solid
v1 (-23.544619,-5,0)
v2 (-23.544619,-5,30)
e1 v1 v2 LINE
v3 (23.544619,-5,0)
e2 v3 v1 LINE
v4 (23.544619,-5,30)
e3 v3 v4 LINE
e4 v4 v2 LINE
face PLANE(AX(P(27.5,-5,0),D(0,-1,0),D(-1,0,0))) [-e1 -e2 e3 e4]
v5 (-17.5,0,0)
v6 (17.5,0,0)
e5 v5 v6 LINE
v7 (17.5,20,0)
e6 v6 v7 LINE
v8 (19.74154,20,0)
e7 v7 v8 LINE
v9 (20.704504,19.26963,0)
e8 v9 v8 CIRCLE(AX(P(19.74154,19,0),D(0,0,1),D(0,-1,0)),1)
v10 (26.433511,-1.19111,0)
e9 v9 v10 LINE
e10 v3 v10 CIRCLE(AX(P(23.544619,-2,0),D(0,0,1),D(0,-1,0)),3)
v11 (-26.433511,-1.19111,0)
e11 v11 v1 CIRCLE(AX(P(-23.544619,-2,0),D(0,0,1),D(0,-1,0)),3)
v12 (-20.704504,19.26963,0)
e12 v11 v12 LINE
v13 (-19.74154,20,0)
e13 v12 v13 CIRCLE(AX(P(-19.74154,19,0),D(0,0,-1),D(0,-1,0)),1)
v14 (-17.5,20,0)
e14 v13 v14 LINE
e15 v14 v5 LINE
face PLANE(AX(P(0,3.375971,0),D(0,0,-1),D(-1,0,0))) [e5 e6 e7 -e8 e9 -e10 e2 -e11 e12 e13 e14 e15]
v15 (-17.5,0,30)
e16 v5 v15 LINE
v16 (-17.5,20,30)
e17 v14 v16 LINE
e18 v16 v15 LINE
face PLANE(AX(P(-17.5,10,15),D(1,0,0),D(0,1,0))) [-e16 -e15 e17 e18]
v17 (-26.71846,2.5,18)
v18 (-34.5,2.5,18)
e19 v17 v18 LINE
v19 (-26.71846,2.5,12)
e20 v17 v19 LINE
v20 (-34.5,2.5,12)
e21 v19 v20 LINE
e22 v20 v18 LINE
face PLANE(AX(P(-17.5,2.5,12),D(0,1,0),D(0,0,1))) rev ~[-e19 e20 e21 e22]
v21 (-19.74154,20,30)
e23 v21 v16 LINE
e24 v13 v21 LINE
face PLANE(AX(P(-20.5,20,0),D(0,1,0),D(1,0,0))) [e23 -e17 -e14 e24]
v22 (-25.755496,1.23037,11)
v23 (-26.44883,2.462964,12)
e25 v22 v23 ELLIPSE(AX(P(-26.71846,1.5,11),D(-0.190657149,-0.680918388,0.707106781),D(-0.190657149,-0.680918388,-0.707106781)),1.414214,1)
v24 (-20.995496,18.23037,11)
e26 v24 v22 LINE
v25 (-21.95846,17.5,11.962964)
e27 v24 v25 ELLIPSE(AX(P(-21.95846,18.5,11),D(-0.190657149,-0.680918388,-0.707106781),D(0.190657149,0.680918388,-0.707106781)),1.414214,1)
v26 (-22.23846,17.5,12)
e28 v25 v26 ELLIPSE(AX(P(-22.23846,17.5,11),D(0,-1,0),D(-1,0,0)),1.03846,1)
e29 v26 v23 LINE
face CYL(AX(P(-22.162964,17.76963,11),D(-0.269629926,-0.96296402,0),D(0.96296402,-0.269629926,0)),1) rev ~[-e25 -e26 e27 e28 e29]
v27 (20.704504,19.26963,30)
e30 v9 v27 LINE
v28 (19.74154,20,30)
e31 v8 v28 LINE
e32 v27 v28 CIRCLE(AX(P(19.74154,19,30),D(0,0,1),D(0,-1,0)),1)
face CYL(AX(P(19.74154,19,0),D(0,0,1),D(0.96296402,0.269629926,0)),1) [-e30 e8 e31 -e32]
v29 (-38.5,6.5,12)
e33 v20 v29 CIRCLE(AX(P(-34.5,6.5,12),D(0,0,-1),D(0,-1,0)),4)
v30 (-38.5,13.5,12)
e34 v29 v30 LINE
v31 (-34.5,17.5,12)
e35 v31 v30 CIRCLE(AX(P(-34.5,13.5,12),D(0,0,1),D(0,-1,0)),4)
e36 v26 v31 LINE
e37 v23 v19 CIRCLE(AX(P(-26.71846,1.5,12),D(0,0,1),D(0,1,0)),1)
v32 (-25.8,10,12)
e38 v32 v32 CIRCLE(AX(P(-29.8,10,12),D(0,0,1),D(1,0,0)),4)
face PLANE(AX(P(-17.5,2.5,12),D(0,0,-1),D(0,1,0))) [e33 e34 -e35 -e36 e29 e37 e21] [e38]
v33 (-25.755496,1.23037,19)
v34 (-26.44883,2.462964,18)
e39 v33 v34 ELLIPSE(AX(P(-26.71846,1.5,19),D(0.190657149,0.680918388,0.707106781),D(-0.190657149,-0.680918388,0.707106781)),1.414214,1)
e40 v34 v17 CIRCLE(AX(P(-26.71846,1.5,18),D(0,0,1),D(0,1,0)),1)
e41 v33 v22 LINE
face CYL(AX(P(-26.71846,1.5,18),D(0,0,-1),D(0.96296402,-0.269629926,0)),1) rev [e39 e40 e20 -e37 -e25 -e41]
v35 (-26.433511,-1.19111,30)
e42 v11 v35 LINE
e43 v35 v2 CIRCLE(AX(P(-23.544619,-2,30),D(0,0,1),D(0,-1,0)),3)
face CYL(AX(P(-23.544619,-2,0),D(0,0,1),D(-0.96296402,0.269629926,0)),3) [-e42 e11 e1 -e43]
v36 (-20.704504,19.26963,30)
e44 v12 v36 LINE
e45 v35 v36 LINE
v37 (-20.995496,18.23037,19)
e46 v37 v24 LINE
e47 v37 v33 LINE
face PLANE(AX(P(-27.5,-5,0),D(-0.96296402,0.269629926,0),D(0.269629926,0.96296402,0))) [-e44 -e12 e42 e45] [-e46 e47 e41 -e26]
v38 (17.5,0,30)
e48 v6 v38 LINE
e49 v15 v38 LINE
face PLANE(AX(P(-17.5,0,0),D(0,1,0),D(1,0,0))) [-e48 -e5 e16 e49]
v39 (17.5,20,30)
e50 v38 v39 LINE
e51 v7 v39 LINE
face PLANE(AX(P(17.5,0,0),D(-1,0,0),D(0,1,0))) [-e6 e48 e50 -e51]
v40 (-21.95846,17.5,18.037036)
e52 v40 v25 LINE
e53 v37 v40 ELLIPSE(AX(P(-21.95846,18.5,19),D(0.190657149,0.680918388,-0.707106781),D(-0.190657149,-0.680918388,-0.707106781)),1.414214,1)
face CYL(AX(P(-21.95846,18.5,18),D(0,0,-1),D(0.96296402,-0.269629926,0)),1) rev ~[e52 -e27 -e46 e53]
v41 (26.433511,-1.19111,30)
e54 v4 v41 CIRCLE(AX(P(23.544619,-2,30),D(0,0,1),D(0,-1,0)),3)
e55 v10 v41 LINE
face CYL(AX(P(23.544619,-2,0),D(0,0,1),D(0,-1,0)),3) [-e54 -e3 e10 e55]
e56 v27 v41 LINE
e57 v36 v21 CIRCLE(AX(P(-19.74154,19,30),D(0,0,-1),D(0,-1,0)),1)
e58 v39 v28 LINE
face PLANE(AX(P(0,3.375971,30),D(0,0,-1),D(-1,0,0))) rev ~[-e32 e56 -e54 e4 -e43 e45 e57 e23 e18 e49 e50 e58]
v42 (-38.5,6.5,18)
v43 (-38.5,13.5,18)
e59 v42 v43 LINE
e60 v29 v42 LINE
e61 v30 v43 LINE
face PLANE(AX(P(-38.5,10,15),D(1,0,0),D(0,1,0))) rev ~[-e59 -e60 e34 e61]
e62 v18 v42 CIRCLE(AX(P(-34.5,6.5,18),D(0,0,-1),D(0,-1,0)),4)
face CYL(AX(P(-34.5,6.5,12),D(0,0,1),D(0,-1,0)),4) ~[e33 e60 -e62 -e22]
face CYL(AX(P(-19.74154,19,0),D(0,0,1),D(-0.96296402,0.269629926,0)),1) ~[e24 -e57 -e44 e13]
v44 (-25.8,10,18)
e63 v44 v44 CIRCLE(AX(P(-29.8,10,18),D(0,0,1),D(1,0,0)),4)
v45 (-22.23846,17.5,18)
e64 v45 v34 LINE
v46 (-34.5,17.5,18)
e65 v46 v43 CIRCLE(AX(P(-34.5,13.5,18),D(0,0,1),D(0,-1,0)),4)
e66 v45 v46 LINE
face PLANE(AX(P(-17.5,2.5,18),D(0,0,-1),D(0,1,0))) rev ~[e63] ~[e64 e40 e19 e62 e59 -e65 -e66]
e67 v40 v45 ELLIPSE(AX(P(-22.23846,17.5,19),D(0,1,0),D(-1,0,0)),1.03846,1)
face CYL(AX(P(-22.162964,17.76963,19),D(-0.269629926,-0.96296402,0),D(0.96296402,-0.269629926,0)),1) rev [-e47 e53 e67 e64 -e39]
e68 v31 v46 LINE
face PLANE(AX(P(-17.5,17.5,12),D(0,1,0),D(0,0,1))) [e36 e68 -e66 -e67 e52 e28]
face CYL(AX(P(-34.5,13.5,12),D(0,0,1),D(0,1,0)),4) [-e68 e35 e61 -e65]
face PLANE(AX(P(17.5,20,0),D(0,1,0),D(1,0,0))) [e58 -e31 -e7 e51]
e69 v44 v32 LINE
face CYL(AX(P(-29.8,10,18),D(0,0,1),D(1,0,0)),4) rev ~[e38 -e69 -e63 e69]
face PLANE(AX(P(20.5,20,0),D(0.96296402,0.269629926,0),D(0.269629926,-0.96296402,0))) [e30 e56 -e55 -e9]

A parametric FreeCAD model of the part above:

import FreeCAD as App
import Part
import Sketcher
Q = App.Units.Quantity


def edges_at(feature, points):
    """Names of the edges that pass closest to the given points."""
    edges = feature.Shape.Edges
    near = lambda p: min(range(len(edges)), key=lambda i: edges[i].distToShape(Part.Vertex(*p))[0])
    return sorted({f"Edge{near(p) + 1}" for p in points})

doc = App.newDocument("Part")
body = doc.addObject("PartDesign::Body", "Body")

sketch1 = doc.addObject("Sketcher::SketchObject", "Sketch")
body.addObject(sketch1)
sketch1.AttachmentSupport = (doc.XY_Plane, [""])
sketch1.MapMode = "FlatFace"
sketch1.addGeometry([
    Part.LineSegment(App.Vector(-17.5, 0, 0), App.Vector(-17.5, 20, 0)),
    Part.LineSegment(App.Vector(-17.5, 20, 0), App.Vector(-20.5, 20, 0)),
    Part.LineSegment(App.Vector(-20.5, 20, 0), App.Vector(-27.5, -5, 0)),
    Part.LineSegment(App.Vector(-27.5, -5, 0), App.Vector(27.5, -5, 0)),
    Part.LineSegment(App.Vector(27.5, -5, 0), App.Vector(20.5, 20, 0)),
    Part.LineSegment(App.Vector(20.5, 20, 0), App.Vector(17.5, 20, 0)),
    Part.LineSegment(App.Vector(17.5, 20, 0), App.Vector(17.5, 0, 0)),
    Part.LineSegment(App.Vector(17.5, 0, 0), App.Vector(-17.5, 0, 0)),
], False)
sketch1.addConstraint([
    Sketcher.Constraint("Coincident", 0, 2, 1, 1),
    Sketcher.Constraint("Coincident", 1, 2, 2, 1),
    Sketcher.Constraint("Coincident", 2, 2, 3, 1),
    Sketcher.Constraint("Coincident", 3, 2, 4, 1),
    Sketcher.Constraint("Coincident", 4, 2, 5, 1),
    Sketcher.Constraint("Coincident", 5, 2, 6, 1),
    Sketcher.Constraint("Coincident", 6, 2, 7, 1),
    Sketcher.Constraint("Coincident", 7, 2, 0, 1),
    Sketcher.Constraint("Vertical", 0),
    Sketcher.Constraint("Horizontal", 1),
    Sketcher.Constraint("Horizontal", 3),
    Sketcher.Constraint("Horizontal", 5),
    Sketcher.Constraint("Vertical", 6),
    Sketcher.Constraint("Horizontal", 7),
    Sketcher.Constraint("Symmetric", 6, 2, 7, 2, -1, 1),
    Sketcher.Constraint("Symmetric", 1, 2, 4, 2, -2),
    Sketcher.Constraint("Equal", 2, 4),
    Sketcher.Constraint("DistanceX", 1, 2, 1, 1, Q("3 mm")),
    Sketcher.Constraint("DistanceX", 3, 1, 3, 2, Q("55 mm")),
    Sketcher.Constraint("DistanceX", 7, 2, 7, 1, Q("35 mm")),
    Sketcher.Constraint("DistanceY", 0, 1, 0, 2, Q("20 mm")),
    Sketcher.Constraint("DistanceY", 2, 2, -1, 1, Q("5 mm")),
])
pad1 = doc.addObject("PartDesign::Pad", "Pad")
body.addObject(pad1)
pad1.Profile = sketch1
pad1.Length = 30

sketch2 = doc.addObject("Sketcher::SketchObject", "Sketch001")
body.addObject(sketch2)
sketch2.AttachmentSupport = (doc.YZ_Plane, [""])
sketch2.MapMode = "FlatFace"
sketch2.AttachmentOffset = App.Placement(App.Vector(0, 0, -17.5), App.Rotation())
sketch2.addGeometry([
    Part.LineSegment(App.Vector(2.5, 18, 0), App.Vector(2.5, 12, 0)),
    Part.LineSegment(App.Vector(2.5, 12, 0), App.Vector(17.5, 12, 0)),
    Part.LineSegment(App.Vector(17.5, 12, 0), App.Vector(17.5, 18, 0)),
    Part.LineSegment(App.Vector(17.5, 18, 0), App.Vector(2.5, 18, 0)),
], False)
sketch2.addConstraint([
    Sketcher.Constraint("Coincident", 0, 2, 1, 1),
    Sketcher.Constraint("Coincident", 1, 2, 2, 1),
    Sketcher.Constraint("Coincident", 2, 2, 3, 1),
    Sketcher.Constraint("Coincident", 3, 2, 0, 1),
    Sketcher.Constraint("Vertical", 0),
    Sketcher.Constraint("Horizontal", 1),
    Sketcher.Constraint("Vertical", 2),
    Sketcher.Constraint("Horizontal", 3),
    Sketcher.Constraint("DistanceX", 1, 1, 1, 2, Q("15 mm")),
    Sketcher.Constraint("DistanceY", 0, 2, 0, 1, Q("6 mm")),
    Sketcher.Constraint("DistanceY", -1, 1, 0, 2, Q("12 mm")),
    Sketcher.Constraint("DistanceX", -1, 1, 0, 2, Q("2.5 mm")),
])
pad2 = doc.addObject("PartDesign::Pad", "Pad001")
body.addObject(pad2)
pad2.Profile = sketch2
pad2.Length = 21
pad2.Reversed = True

sketch3 = doc.addObject("Sketcher::SketchObject", "Sketch002")
body.addObject(sketch3)
sketch3.AttachmentSupport = (doc.XY_Plane, [""])
sketch3.MapMode = "FlatFace"
sketch3.AttachmentOffset = App.Placement(App.Vector(0, 0, 18), App.Rotation())
sketch3.addGeometry(Part.Circle(App.Vector(-29.8, 10, 0), App.Vector(0, 0, 1), 4), False)
sketch3.addConstraint([
    Sketcher.Constraint("Diameter", 0, Q("8 mm")),
    Sketcher.Constraint("DistanceY", -1, 1, 0, 3, Q("10 mm")),
    Sketcher.Constraint("DistanceX", 0, 3, -1, 1, Q("29.8 mm")),
])
pocket1 = doc.addObject("PartDesign::Pocket", "Pocket")
body.addObject(pocket1)
pocket1.Profile = sketch3
pocket1.Length = 6
doc.recompute()

fillet = doc.addObject("PartDesign::Fillet", "Fillet")
body.addObject(fillet)
fillet.Base = (pocket1, edges_at(pocket1, [(-38.5, 17.5, 15), (-38.5, 2.5, 15)]))
fillet.Radius = 4
doc.recompute()

fillet2 = doc.addObject("PartDesign::Fillet", "Fillet001")
body.addObject(fillet2)
fillet2.Base = (fillet, edges_at(fillet, [(-27.5, -5, 15), (27.5, -5, 15)]))
fillet2.Radius = 3
doc.recompute()

fillet3 = doc.addObject("PartDesign::Fillet", "Fillet002")
body.addObject(fillet3)
fillet3.Base = (fillet2, edges_at(fillet2, [(-20.5, 20, 15), (20.5, 20, 15)]))
fillet3.Radius = 1
doc.recompute()

fillet4 = doc.addObject("PartDesign::Fillet", "Fillet003")
body.addObject(fillet4)
fillet4.Base = (fillet3, edges_at(fillet3, [
    (-23.3, 10, 18),
    (-23.3, 10, 12),
    (-21.2, 17.5, 15),
    (-25.4, 2.5, 15),
]))
fillet4.Radius = 1

doc.recompute()
